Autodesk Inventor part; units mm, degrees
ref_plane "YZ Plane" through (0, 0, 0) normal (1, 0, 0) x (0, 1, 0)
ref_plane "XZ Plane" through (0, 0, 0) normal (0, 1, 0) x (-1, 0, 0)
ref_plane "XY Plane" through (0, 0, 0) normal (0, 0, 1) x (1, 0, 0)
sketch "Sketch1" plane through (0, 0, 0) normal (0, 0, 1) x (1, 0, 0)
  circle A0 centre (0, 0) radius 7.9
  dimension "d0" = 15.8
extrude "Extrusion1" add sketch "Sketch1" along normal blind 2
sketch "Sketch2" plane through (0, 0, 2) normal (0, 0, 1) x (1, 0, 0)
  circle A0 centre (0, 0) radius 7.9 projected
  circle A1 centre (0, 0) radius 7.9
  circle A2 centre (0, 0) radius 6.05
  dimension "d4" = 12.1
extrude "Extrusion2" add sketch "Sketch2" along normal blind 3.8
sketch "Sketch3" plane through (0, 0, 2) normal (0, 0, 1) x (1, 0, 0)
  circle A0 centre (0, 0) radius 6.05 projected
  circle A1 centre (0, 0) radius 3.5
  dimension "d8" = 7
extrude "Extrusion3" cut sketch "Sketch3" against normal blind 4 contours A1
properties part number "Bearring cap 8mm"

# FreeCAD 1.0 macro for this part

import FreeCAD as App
import Part
import Sketcher

doc = App.newDocument("Part")
params = doc.addObject("Spreadsheet::Sheet", "Params")
for row, (alias, value) in enumerate([
    ("sketch1_diameter", "15.8 mm"),
    ("pad1_length", "2 mm"),
    ("sketch2_diameter", "12.1 mm"),
    ("sketch2_diameter2", "15.8 mm"),
    ("pad2_length", "3.8 mm"),
    ("sketch3_diameter", "7 mm"),
    ("pocket1_length", "4 mm"),
], start=1):
    params.set(f"A{row}", alias)
    params.set(f"B{row}", "=" + value)
    params.setAlias(f"B{row}", alias)

body = doc.addObject("PartDesign::Body", "Body")

sketch1 = doc.addObject("Sketcher::SketchObject", "Sketch")
body.addObject(sketch1)
sketch1.AttachmentSupport = (doc.XY_Plane, [""])
sketch1.MapMode = "FlatFace"
sketch1.addGeometry(Part.Circle(App.Vector(0, 0, 0), App.Vector(0, 0, 1), 8), False)
sketch1.addConstraint(Sketcher.Constraint("Coincident", 0, 3, -1, 1))
sketch1.addConstraint(Sketcher.Constraint("Diameter", 0, 15.8))
sketch1.setExpression("Constraints[1]", "Params.sketch1_diameter")
pad1 = doc.addObject("PartDesign::Pad", "Pad")
body.addObject(pad1)
pad1.Profile = sketch1
pad1.setExpression("Length", "Params.pad1_length")

sketch2 = doc.addObject("Sketcher::SketchObject", "Sketch001")
body.addObject(sketch2)
sketch2.AttachmentSupport = (doc.XY_Plane, [""])
sketch2.MapMode = "FlatFace"
sketch2.AttachmentOffset = App.Placement(App.Vector(0, 0, 2), App.Rotation())
sketch2.addGeometry(Part.Circle(App.Vector(0, 0, 0), App.Vector(0, 0, 1), 8), False)
sketch2.addGeometry(Part.Circle(App.Vector(0, 0, 0), App.Vector(0, 0, 1), 6), False)
sketch2.addConstraint(Sketcher.Constraint("Coincident", 0, 3, -1, 1))
sketch2.addConstraint(Sketcher.Constraint("Coincident", 1, 3, -1, 1))
sketch2.addConstraint(Sketcher.Constraint("Diameter", 1, 12.1))
sketch2.addConstraint(Sketcher.Constraint("Diameter", 0, 15.8))
sketch2.setExpression("Constraints[2]", "Params.sketch2_diameter")
sketch2.setExpression("Constraints[3]", "Params.sketch2_diameter2")
pad2 = doc.addObject("PartDesign::Pad", "Pad001")
body.addObject(pad2)
pad2.Profile = sketch2
pad2.setExpression("Length", "Params.pad2_length")

sketch3 = doc.addObject("Sketcher::SketchObject", "Sketch002")
body.addObject(sketch3)
sketch3.AttachmentSupport = (doc.XY_Plane, [""])
sketch3.MapMode = "FlatFace"
sketch3.AttachmentOffset = App.Placement(App.Vector(0, 0, 2), App.Rotation())
sketch3.addGeometry(Part.Circle(App.Vector(0, 0, 0), App.Vector(0, 0, 1), 3.5), False)
sketch3.addConstraint(Sketcher.Constraint("Coincident", 0, 3, -1, 1))
sketch3.addConstraint(Sketcher.Constraint("Diameter", 0, 7.0))
sketch3.setExpression("Constraints[1]", "Params.sketch3_diameter")
pocket1 = doc.addObject("PartDesign::Pocket", "Pocket")
body.addObject(pocket1)
pocket1.Profile = sketch3
pocket1.setExpression("Length", "Params.pocket1_length")

doc.recompute()
